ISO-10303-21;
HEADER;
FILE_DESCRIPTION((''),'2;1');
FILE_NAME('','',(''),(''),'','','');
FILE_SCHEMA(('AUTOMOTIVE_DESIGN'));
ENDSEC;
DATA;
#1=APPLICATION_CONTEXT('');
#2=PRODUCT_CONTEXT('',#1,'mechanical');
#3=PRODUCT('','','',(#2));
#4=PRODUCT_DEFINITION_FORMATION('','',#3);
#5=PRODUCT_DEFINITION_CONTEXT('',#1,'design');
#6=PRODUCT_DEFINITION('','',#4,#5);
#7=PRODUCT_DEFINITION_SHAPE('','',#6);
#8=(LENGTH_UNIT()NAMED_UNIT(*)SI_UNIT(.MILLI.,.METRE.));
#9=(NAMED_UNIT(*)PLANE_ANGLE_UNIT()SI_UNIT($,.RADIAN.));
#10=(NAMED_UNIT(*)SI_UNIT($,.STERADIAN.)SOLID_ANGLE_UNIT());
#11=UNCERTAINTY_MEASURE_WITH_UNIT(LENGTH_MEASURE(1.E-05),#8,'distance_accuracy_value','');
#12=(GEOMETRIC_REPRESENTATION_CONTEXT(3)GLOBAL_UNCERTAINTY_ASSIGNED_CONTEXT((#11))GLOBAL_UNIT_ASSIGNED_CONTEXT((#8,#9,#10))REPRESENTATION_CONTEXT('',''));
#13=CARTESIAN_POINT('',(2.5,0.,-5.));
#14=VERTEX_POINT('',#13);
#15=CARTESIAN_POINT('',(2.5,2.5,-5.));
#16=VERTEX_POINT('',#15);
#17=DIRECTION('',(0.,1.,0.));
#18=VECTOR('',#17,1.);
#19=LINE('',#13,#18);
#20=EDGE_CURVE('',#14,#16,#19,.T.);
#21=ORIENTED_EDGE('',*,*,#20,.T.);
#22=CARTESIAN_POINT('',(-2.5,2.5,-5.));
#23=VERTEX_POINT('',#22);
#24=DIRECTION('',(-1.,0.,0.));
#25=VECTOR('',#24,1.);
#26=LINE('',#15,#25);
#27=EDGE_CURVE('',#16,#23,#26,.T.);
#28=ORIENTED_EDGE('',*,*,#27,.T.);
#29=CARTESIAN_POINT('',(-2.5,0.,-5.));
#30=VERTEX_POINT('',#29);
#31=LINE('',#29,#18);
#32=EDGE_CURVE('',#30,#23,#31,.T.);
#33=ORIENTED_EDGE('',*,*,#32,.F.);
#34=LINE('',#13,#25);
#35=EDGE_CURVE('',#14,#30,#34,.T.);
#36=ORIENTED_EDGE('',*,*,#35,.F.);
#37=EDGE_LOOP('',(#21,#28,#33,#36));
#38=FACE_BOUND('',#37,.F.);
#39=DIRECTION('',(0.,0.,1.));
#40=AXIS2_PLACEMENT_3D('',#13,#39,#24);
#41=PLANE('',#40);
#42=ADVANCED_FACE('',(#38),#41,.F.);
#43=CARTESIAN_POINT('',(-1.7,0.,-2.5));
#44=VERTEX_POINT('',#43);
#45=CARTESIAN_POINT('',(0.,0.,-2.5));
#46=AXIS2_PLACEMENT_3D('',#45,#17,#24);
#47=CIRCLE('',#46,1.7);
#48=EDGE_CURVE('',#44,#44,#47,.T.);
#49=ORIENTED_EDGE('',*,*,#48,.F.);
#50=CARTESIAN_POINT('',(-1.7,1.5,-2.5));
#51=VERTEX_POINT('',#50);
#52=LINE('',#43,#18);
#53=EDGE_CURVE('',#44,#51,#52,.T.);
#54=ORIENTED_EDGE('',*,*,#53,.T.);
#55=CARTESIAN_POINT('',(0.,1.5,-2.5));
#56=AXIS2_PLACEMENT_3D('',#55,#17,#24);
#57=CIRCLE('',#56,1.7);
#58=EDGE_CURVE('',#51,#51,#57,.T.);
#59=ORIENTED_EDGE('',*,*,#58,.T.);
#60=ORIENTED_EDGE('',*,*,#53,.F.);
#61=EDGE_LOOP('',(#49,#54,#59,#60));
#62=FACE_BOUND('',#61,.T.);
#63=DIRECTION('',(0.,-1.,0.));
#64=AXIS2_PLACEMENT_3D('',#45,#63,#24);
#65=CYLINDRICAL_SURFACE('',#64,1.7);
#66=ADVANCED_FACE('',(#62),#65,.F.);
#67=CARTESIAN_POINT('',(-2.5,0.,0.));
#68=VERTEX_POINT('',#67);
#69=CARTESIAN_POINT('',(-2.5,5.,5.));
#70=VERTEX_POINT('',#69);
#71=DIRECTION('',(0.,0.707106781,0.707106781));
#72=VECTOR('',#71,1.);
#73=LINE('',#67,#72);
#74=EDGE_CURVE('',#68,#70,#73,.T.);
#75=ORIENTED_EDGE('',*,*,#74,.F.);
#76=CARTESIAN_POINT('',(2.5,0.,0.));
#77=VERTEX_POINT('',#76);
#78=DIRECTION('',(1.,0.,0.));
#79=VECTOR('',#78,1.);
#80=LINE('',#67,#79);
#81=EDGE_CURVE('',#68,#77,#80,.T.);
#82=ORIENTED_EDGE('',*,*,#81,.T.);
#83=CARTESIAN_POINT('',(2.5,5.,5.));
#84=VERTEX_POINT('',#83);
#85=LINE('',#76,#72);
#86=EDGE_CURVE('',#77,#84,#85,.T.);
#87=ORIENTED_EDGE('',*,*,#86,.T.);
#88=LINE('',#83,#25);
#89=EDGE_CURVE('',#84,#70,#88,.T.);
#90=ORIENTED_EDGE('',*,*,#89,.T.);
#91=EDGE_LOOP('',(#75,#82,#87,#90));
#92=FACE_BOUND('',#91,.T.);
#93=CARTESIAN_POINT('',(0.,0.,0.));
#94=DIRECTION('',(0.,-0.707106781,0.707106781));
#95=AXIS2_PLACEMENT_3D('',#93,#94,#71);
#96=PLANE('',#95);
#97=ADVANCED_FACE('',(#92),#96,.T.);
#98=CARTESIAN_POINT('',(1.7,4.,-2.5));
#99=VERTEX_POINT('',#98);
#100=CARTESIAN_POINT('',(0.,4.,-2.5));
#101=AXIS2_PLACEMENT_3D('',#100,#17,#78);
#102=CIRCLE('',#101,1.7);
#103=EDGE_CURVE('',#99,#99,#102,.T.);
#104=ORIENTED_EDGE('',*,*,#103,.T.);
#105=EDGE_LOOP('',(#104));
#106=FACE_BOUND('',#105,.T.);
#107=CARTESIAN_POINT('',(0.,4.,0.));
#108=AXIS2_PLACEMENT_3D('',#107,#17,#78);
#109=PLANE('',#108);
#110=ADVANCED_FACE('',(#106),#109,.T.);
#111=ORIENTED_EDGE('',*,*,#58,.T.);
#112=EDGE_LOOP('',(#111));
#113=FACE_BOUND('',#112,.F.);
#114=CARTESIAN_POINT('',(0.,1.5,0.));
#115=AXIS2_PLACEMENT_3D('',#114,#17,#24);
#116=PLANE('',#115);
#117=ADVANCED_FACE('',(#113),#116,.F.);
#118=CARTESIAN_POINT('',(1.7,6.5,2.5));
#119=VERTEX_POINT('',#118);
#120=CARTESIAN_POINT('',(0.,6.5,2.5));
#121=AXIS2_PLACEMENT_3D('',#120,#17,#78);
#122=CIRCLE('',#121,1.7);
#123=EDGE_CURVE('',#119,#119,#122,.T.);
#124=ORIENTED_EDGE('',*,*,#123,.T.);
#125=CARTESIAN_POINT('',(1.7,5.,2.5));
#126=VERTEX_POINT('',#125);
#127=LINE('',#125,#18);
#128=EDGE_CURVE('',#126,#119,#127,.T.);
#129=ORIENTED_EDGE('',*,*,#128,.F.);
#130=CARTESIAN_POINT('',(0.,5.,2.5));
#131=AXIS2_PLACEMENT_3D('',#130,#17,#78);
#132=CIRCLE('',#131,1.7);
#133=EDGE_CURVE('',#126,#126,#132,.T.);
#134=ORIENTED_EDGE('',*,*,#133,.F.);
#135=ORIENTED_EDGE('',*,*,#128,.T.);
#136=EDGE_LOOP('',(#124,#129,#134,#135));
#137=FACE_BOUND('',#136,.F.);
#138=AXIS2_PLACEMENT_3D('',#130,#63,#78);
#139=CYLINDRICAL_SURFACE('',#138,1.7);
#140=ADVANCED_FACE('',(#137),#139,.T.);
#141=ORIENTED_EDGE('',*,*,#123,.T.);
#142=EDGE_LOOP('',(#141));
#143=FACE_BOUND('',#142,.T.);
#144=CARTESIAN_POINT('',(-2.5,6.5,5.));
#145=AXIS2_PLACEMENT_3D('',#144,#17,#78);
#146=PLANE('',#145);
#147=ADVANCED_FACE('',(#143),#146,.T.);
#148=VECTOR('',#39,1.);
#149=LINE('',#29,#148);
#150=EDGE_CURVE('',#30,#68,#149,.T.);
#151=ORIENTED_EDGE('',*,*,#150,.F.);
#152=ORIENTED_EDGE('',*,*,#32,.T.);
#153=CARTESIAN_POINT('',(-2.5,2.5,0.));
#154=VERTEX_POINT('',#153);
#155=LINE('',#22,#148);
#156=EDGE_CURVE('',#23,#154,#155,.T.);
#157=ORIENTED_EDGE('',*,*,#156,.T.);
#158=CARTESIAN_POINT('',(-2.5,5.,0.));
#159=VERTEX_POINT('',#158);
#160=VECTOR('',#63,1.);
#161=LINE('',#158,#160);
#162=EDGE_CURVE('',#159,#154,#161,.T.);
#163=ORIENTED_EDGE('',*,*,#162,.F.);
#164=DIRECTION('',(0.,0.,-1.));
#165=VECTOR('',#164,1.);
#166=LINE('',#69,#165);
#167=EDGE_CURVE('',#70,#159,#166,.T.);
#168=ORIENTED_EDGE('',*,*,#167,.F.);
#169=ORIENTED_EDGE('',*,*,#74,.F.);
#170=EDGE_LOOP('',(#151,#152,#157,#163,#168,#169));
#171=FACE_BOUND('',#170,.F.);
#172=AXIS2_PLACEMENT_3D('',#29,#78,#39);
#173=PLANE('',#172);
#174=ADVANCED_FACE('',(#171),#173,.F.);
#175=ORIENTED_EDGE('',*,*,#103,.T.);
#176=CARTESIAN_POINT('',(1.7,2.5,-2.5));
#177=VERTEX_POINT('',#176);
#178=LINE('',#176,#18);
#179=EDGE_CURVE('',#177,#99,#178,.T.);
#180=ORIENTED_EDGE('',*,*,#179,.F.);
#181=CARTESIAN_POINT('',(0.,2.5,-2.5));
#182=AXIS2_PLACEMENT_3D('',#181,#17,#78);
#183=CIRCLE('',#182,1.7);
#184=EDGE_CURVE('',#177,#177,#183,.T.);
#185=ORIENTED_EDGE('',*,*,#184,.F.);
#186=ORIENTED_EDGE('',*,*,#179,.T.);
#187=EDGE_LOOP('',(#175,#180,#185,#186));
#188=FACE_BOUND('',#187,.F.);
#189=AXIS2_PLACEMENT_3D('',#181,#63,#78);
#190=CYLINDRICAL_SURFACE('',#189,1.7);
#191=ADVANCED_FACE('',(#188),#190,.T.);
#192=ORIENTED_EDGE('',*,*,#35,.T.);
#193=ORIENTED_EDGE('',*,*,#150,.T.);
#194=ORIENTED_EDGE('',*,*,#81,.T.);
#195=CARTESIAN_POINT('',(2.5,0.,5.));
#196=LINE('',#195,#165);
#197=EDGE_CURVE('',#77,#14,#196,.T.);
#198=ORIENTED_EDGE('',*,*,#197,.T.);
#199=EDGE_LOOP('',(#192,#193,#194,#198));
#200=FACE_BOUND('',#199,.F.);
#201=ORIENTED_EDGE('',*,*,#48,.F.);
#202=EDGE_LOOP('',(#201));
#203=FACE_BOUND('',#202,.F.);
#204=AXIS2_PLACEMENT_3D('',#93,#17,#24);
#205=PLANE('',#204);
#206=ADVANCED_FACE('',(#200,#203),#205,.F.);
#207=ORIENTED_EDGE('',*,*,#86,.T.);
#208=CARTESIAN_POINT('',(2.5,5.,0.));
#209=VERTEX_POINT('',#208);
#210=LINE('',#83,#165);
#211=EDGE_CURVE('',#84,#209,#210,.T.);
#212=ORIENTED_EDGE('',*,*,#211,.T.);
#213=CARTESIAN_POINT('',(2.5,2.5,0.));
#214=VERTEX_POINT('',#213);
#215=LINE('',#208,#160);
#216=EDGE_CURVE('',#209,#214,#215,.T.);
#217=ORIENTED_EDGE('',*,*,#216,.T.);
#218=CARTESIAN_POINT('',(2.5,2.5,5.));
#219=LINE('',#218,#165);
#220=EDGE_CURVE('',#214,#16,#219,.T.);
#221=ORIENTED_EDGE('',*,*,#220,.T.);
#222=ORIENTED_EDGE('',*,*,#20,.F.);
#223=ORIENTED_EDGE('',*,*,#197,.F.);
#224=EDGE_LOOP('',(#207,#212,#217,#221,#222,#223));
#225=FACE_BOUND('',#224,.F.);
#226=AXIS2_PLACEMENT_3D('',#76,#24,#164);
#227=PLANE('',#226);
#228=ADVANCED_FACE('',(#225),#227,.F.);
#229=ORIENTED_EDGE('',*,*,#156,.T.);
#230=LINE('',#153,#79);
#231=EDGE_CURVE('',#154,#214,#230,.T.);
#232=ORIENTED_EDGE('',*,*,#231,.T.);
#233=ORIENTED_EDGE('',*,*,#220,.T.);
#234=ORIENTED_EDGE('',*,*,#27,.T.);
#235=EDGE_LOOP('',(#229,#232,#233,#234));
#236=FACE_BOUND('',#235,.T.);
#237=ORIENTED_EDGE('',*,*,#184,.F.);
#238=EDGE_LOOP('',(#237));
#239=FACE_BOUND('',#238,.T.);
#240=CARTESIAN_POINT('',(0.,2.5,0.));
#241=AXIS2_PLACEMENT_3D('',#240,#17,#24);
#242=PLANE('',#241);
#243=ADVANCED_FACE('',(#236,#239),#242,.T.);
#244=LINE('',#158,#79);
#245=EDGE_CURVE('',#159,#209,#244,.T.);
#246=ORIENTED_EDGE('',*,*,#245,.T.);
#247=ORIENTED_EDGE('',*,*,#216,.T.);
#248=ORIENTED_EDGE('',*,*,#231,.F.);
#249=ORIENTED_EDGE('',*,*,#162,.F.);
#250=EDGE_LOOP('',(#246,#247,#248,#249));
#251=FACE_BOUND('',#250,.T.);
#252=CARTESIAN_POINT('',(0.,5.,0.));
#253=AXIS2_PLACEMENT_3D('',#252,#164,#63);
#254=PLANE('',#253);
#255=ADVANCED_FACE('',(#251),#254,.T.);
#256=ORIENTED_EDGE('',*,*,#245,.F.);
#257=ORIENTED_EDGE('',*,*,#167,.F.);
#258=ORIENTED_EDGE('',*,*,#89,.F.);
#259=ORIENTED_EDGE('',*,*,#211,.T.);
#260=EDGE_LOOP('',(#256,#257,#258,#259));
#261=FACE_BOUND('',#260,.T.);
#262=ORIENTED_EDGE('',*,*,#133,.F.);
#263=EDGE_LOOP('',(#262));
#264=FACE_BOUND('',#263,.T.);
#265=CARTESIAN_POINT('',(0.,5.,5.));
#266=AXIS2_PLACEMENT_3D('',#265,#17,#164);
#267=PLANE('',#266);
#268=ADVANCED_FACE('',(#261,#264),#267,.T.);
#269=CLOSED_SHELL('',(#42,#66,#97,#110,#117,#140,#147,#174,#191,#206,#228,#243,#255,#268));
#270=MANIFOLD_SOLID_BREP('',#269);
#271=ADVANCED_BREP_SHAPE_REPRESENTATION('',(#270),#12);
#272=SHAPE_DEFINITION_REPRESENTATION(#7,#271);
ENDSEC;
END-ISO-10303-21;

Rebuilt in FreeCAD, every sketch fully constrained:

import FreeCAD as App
import Part
import Sketcher
from FreeCAD import Vector


def add_polygon(sketch, points):
    """Adds a closed chain of lines whose ends are joined by coincident constraints."""
    first, n = sketch.GeometryCount, len(points)
    for a, b in zip(points, points[1:] + points[:1]):
        sketch.addGeometry(Part.LineSegment(App.Vector(*a, 0), App.Vector(*b, 0)), False)
    for i in range(n):
        sketch.addConstraint(Sketcher.Constraint("Coincident", first + i, 2, first + (i + 1) % n, 1))

doc = App.newDocument("Part")
body = doc.addObject("PartDesign::Body", "Body")

# Sketch on XZ plane
sketch1 = body.newObject("Sketcher::SketchObject", "Sketch")
sketch1.AttachmentSupport = (doc.getObject("XZ_Plane"), [""])
sketch1.MapMode = "FlatFace"
add_polygon(sketch1, [(-2, -5), (-2, 0), (2, 0), (2, -5)])  # lines 0-3
sketch1.addConstraint([
    Sketcher.Constraint("Vertical", 0),
    Sketcher.Constraint("Horizontal", 1),
    Sketcher.Constraint("Vertical", 2),
    Sketcher.Constraint("Horizontal", 3),
    Sketcher.Constraint("Symmetric", 0, 2, 1, 2, -1, 1),
    Sketcher.Constraint("Equal", 3, 0),
    Sketcher.Constraint("DistanceX", 1, 1, 1, 2, 5.0),
])
pad1 = body.newObject("PartDesign::Pad", "Pad")
pad1.Profile = sketch1
pad1.Length = 2.5
pad1.Reversed = True

# Sketch on XZ plane
sketch2 = body.newObject("Sketcher::SketchObject", "Sketch001")
sketch2.AttachmentSupport = (doc.getObject("XZ_Plane"), [""])
sketch2.MapMode = "FlatFace"
sketch2.addGeometry(Part.Circle(Vector(0, -2.5, 0), Vector(0, 0, 1), 1.7), False)
sketch2.addConstraint([
    Sketcher.Constraint("PointOnObject", 0, 3, -2),
    Sketcher.Constraint("Diameter", 0, 3.4),
    Sketcher.Constraint("DistanceY", 0, 3, -1, 1, 2.5),
])
pocket1 = body.newObject("PartDesign::Pocket", "Pocket")
pocket1.Profile = sketch2
pocket1.Length = 1.5

# Sketch on XZ plane
sketch3 = body.newObject("Sketcher::SketchObject", "Sketch002")
sketch3.AttachmentSupport = (doc.getObject("XZ_Plane"), [""])
sketch3.MapMode = "FlatFace"
sketch3.AttachmentOffset = App.Placement(Vector(0, 0, -2.5), App.Rotation())
sketch3.addGeometry(Part.Circle(Vector(0, -2.5, 0), Vector(0, 0, 1), 1.7), False)
sketch3.addConstraint([
    Sketcher.Constraint("PointOnObject", 0, 3, -2),
    Sketcher.Constraint("Diameter", 0, 3.4),
    Sketcher.Constraint("DistanceY", 0, 3, -1, 1, 2.5),
])
pad2 = body.newObject("PartDesign::Pad", "Pad001")
pad2.Profile = sketch3
pad2.Length = 1.5
pad2.Reversed = True

# Sketch on YZ plane
sketch4 = body.newObject("Sketcher::SketchObject", "Sketch003")
sketch4.AttachmentSupport = (doc.getObject("YZ_Plane"), [""])
sketch4.MapMode = "FlatFace"
add_polygon(sketch4, [(5, 5), (0, 0), (5, 0)])  # lines 0-2
sketch4.addConstraint([
    Sketcher.Constraint("Horizontal", 1),
    Sketcher.Constraint("Vertical", 2),
    Sketcher.Constraint("Coincident", 0, 2, -1, 1),
    Sketcher.Constraint("Equal", 1, 2),
    Sketcher.Constraint("DistanceX", 1, 1, 1, 2, 5.0),
])
pad3 = body.newObject("PartDesign::Pad", "Pad002")
pad3.Profile = sketch4
pad3.Length = 5
pad3.Midplane = True

# Sketch on XZ plane
sketch5 = body.newObject("Sketcher::SketchObject", "Sketch004")
sketch5.AttachmentSupport = (doc.getObject("XZ_Plane"), [""])
sketch5.MapMode = "FlatFace"
sketch5.AttachmentOffset = App.Placement(Vector(0, 0, -5), App.Rotation())
sketch5.addGeometry(Part.Circle(Vector(0, 2.5, 0), Vector(0, 0, 1), 1.7), False)
sketch5.addConstraint([
    Sketcher.Constraint("PointOnObject", 0, 3, -2),
    Sketcher.Constraint("Diameter", 0, 3.4),
    Sketcher.Constraint("DistanceY", -1, 1, 0, 3, 2.5),
])
pad4 = body.newObject("PartDesign::Pad", "Pad003")
pad4.Profile = sketch5
pad4.Length = 1.5
pad4.Reversed = True

doc.recompute()
